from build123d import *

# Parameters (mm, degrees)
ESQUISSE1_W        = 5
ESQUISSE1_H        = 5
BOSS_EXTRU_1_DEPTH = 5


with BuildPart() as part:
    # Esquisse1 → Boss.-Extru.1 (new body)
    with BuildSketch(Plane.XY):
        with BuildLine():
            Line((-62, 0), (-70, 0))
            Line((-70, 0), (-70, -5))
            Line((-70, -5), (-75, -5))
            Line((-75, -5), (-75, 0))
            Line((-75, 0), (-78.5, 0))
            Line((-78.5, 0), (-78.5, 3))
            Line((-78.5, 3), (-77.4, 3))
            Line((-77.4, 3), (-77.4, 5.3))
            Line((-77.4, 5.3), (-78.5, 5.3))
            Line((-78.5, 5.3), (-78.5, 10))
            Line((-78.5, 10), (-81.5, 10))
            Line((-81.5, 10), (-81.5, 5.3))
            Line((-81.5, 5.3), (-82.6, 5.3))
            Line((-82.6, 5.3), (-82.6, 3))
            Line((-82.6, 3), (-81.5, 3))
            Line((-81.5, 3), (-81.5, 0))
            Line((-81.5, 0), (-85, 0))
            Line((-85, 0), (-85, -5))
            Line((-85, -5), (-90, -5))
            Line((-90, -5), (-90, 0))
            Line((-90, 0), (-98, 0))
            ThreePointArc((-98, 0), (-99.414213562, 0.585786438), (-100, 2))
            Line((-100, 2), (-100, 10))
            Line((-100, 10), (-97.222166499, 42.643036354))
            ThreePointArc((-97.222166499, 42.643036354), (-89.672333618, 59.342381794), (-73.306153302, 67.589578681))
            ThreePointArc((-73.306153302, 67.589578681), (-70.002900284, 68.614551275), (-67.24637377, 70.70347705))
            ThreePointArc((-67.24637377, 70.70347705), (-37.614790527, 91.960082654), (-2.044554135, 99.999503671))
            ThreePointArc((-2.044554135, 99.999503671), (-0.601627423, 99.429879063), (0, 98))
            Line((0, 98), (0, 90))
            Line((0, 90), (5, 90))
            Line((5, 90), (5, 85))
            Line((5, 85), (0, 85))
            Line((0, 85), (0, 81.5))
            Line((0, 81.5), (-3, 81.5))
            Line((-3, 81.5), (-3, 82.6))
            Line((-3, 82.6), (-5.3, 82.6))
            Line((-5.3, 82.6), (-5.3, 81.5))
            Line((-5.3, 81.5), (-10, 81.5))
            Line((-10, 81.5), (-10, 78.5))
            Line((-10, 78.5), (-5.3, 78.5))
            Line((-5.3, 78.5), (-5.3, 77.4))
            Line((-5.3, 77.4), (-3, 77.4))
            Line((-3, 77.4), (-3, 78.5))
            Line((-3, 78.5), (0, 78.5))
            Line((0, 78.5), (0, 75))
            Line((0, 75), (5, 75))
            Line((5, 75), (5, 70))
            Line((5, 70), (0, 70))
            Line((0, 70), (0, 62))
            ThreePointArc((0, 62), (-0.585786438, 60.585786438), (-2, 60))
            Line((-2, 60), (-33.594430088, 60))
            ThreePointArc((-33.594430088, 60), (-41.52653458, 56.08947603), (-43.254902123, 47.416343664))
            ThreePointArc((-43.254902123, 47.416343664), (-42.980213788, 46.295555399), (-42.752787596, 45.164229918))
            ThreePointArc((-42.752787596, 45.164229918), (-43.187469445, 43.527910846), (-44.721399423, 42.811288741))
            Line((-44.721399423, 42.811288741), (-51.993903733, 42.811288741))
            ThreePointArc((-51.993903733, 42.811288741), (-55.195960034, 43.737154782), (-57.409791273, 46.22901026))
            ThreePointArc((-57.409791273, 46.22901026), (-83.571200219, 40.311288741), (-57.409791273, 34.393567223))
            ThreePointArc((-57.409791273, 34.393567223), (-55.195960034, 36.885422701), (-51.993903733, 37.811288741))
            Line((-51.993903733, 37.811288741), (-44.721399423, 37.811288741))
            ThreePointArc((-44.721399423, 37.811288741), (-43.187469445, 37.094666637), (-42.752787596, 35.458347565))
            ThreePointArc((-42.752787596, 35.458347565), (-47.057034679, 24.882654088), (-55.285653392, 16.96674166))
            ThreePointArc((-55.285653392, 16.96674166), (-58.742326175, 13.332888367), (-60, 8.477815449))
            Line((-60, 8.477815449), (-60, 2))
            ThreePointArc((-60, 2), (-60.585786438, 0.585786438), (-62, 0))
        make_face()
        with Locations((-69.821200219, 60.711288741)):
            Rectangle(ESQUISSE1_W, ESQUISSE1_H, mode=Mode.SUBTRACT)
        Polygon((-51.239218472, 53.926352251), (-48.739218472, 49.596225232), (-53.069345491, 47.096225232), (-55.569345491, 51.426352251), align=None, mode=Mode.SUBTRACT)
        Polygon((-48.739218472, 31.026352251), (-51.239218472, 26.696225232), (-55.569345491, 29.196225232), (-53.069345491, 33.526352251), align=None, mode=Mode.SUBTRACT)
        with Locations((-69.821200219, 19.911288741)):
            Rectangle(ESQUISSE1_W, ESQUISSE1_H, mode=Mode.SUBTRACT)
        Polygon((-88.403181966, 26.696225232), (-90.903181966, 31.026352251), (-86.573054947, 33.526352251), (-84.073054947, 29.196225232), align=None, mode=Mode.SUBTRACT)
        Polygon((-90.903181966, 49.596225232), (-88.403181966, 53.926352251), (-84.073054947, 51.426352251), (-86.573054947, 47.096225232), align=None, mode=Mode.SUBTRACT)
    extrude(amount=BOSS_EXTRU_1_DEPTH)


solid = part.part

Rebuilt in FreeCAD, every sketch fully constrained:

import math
import FreeCAD as App
import Part
import Sketcher

V = App.Vector
Q = App.Units.Quantity


def add_polygon(sketch, points):
    """Adds a closed chain of lines whose ends are joined by coincident constraints."""
    first, n = sketch.GeometryCount, len(points)
    for a, b in zip(points, points[1:] + points[:1]):
        sketch.addGeometry(Part.LineSegment(App.Vector(*a, 0), App.Vector(*b, 0)), False)
    for i in range(n):
        sketch.addConstraint(Sketcher.Constraint("Coincident", first + i, 2, first + (i + 1) % n, 1))

doc = App.newDocument("Part")
body = doc.addObject("PartDesign::Body", "Body")

# Sketch on XY plane
sketch1 = body.newObject("Sketcher::SketchObject", "Sketch")
sketch1.AttachmentSupport = (doc.getObject("XY_Plane"), [""])
sketch1.MapMode = "FlatFace"
sketch1.addGeometry(Part.LineSegment(V(-70, 0, 0), V(-62, 0, 0)), False)  # 0
sketch1.addGeometry(Part.ArcOfCircle(Part.Circle(V(-62, 2, 0), V(0, 0, 1), 2), math.radians(-90), math.radians(0)), False)  # 1
sketch1.addGeometry(Part.LineSegment(V(-60, 2, 0), V(-60, 8.5, 0)), False)  # 2
sketch1.addGeometry(Part.ArcOfCircle(Part.Circle(V(-50, 8.5, 0), V(0, 0, 1), 10), math.radians(122), math.radians(180)), False)  # 3
sketch1.addGeometry(Part.ArcOfCircle(Part.Circle(V(-69.8, 40.3, 0), V(0, 0, 1), 27.5), math.radians(-58), math.radians(-10)), False)  # 4
sketch1.addGeometry(Part.ArcOfCircle(Part.Circle(V(-44.7, 35.8, 0), V(0, 0, 1), 2), math.radians(-10), math.radians(90)), False)  # 5
sketch1.addGeometry(Part.LineSegment(V(-44.7, 37.8, 0), V(-52, 37.8, 0)), False)  # 6
sketch1.addGeometry(Part.ArcOfCircle(Part.Circle(V(-52, 31.8, 0), V(0, 0, 1), 6), math.radians(90), math.radians(155)), False)  # 7
sketch1.addGeometry(Part.ArcOfCircle(Part.Circle(V(-69.8, 40.3, 0), V(0, 0, 1), 13.8), math.radians(25), math.radians(335)), False)  # 8
sketch1.addGeometry(Part.ArcOfCircle(Part.Circle(V(-52, 48.8, 0), V(0, 0, 1), 6), math.radians(-155), math.radians(-90)), False)  # 9
sketch1.addGeometry(Part.LineSegment(V(-52, 42.8, 0), V(-44.7, 42.8, 0)), False)  # 10
sketch1.addGeometry(Part.ArcOfCircle(Part.Circle(V(-44.7, 44.8, 0), V(0, 0, 1), 2), math.radians(-90), math.radians(10)), False)  # 11
sketch1.addGeometry(Part.ArcOfCircle(Part.Circle(V(-69.8, 40.3, 0), V(0, 0, 1), 27.5), math.radians(10.16), math.radians(14.97)), False)  # 12
sketch1.addGeometry(Part.ArcOfCircle(Part.Circle(V(-33.6, 50, 0), V(0, 0, 1), 10), math.radians(90), math.radians(195)), False)  # 13
sketch1.addGeometry(Part.LineSegment(V(-33.6, 60, 0), V(-2, 60, 0)), False)  # 14
sketch1.addGeometry(Part.ArcOfCircle(Part.Circle(V(-2, 62, 0), V(0, 0, 1), 2), math.radians(-90), math.radians(0)), False)  # 15
sketch1.addGeometry(Part.LineSegment(V(0, 62, 0), V(0, 70, 0)), False)  # 16
sketch1.addGeometry(Part.LineSegment(V(0, 70, 0), V(5, 70, 0)), False)  # 17
sketch1.addGeometry(Part.LineSegment(V(5, 70, 0), V(5, 75, 0)), False)  # 18
sketch1.addGeometry(Part.LineSegment(V(5, 75, 0), V(0, 75, 0)), False)  # 19
sketch1.addGeometry(Part.LineSegment(V(0, 75, 0), V(0, 78.5, 0)), False)  # 20
sketch1.addGeometry(Part.LineSegment(V(0, 78.5, 0), V(-3, 78.5, 0)), False)  # 21
sketch1.addGeometry(Part.LineSegment(V(-3, 78.5, 0), V(-3, 77.4, 0)), False)  # 22
sketch1.addGeometry(Part.LineSegment(V(-3, 77.4, 0), V(-5.3, 77.4, 0)), False)  # 23
sketch1.addGeometry(Part.LineSegment(V(-5.3, 77.4, 0), V(-5.3, 78.5, 0)), False)  # 24
sketch1.addGeometry(Part.LineSegment(V(-5.3, 78.5, 0), V(-10, 78.5, 0)), False)  # 25
sketch1.addGeometry(Part.LineSegment(V(-10, 78.5, 0), V(-10, 81.5, 0)), False)  # 26
sketch1.addGeometry(Part.LineSegment(V(-10, 81.5, 0), V(-5.3, 81.5, 0)), False)  # 27
sketch1.addGeometry(Part.LineSegment(V(-5.3, 81.5, 0), V(-5.3, 82.6, 0)), False)  # 28
sketch1.addGeometry(Part.LineSegment(V(-5.3, 82.6, 0), V(-3, 82.6, 0)), False)  # 29
sketch1.addGeometry(Part.LineSegment(V(-3, 82.6, 0), V(-3, 81.5, 0)), False)  # 30
sketch1.addGeometry(Part.LineSegment(V(-3, 81.5, 0), V(0, 81.5, 0)), False)  # 31
sketch1.addGeometry(Part.LineSegment(V(0, 81.5, 0), V(0, 85, 0)), False)  # 32
sketch1.addGeometry(Part.LineSegment(V(0, 85, 0), V(5, 85, 0)), False)  # 33
sketch1.addGeometry(Part.LineSegment(V(5, 85, 0), V(5, 90, 0)), False)  # 34
sketch1.addGeometry(Part.LineSegment(V(5, 90, 0), V(0, 90, 0)), False)  # 35
sketch1.addGeometry(Part.LineSegment(V(0, 90, 0), V(0, 98, 0)), False)  # 36
sketch1.addGeometry(Part.ArcOfCircle(Part.Circle(V(-2, 98, 0), V(0, 0, 1), 2), math.radians(0), math.radians(91)), False)  # 37
sketch1.addGeometry(Part.ArcOfCircle(Part.Circle(V(0, 8.2, 0), V(0, 0, 1), 91.8), math.radians(91), math.radians(137)), False)  # 38
sketch1.addGeometry(Part.ArcOfCircle(Part.Circle(V(-74.6, 77.5, 0), V(0, 0, 1), 10), math.radians(-83), math.radians(-43)), False)  # 39
sketch1.addGeometry(Part.ArcOfCircle(Part.Circle(V(-69.8, 40.3, 0), V(0, 0, 1), 27.5), math.radians(97), math.radians(175)), False)  # 40
sketch1.addGeometry(Part.LineSegment(V(-97.2, 42.6, 0), V(-100, 10, 0)), False)  # 41
sketch1.addGeometry(Part.LineSegment(V(-100, 10, 0), V(-100, 2, 0)), False)  # 42
sketch1.addGeometry(Part.ArcOfCircle(Part.Circle(V(-98, 2, 0), V(0, 0, 1), 2), math.radians(-180), math.radians(-90)), False)  # 43
sketch1.addGeometry(Part.LineSegment(V(-98, 0, 0), V(-90, 0, 0)), False)  # 44
sketch1.addGeometry(Part.LineSegment(V(-90, 0, 0), V(-90, -5, 0)), False)  # 45
sketch1.addGeometry(Part.LineSegment(V(-90, -5, 0), V(-85, -5, 0)), False)  # 46
sketch1.addGeometry(Part.LineSegment(V(-85, -5, 0), V(-85, 0, 0)), False)  # 47
sketch1.addGeometry(Part.LineSegment(V(-85, 0, 0), V(-81.5, 0, 0)), False)  # 48
sketch1.addGeometry(Part.LineSegment(V(-81.5, 0, 0), V(-81.5, 3, 0)), False)  # 49
sketch1.addGeometry(Part.LineSegment(V(-81.5, 3, 0), V(-82.6, 3, 0)), False)  # 50
sketch1.addGeometry(Part.LineSegment(V(-82.6, 3, 0), V(-82.6, 5.3, 0)), False)  # 51
sketch1.addGeometry(Part.LineSegment(V(-82.6, 5.3, 0), V(-81.5, 5.3, 0)), False)  # 52
sketch1.addGeometry(Part.LineSegment(V(-81.5, 5.3, 0), V(-81.5, 10, 0)), False)  # 53
sketch1.addGeometry(Part.LineSegment(V(-81.5, 10, 0), V(-78.5, 10, 0)), False)  # 54
sketch1.addGeometry(Part.LineSegment(V(-78.5, 10, 0), V(-78.5, 5.3, 0)), False)  # 55
sketch1.addGeometry(Part.LineSegment(V(-78.5, 5.3, 0), V(-77.4, 5.3, 0)), False)  # 56
sketch1.addGeometry(Part.LineSegment(V(-77.4, 5.3, 0), V(-77.4, 3, 0)), False)  # 57
sketch1.addGeometry(Part.LineSegment(V(-77.4, 3, 0), V(-78.5, 3, 0)), False)  # 58
sketch1.addGeometry(Part.LineSegment(V(-78.5, 3, 0), V(-78.5, 0, 0)), False)  # 59
sketch1.addGeometry(Part.LineSegment(V(-78.5, 0, 0), V(-75, 0, 0)), False)  # 60
sketch1.addGeometry(Part.LineSegment(V(-75, 0, 0), V(-75, -5, 0)), False)  # 61
sketch1.addGeometry(Part.LineSegment(V(-75, -5, 0), V(-70, -5, 0)), False)  # 62
sketch1.addGeometry(Part.LineSegment(V(-70, -5, 0), V(-70, 0, 0)), False)  # 63
add_polygon(sketch1, [(-48.7, 31), (-51.2, 26.7), (-55.6, 29.2), (-53.1, 33.5)])  # lines 64-67
add_polygon(sketch1, [(-72.3, 17.4), (-72.3, 22.4), (-67.3, 22.4), (-67.3, 17.4)])  # lines 68-71
add_polygon(sketch1, [(-88.4, 26.7), (-90.9, 31), (-86.6, 33.5), (-84.1, 29.2)])  # lines 72-75
add_polygon(sketch1, [(-51.2, 53.9), (-48.7, 49.6), (-53.1, 47.1), (-55.6, 51.4)])  # lines 76-79
add_polygon(sketch1, [(-90.9, 49.6), (-88.4, 53.9), (-84.1, 51.4), (-86.6, 47.1)])  # lines 80-83
add_polygon(sketch1, [(-72.3, 58.2), (-72.3, 63.2), (-67.3, 63.2), (-67.3, 58.2)])  # lines 84-87
sketch1.addConstraint([
    Sketcher.Constraint("Tangent", 0, 2, 1, 1),
    Sketcher.Constraint("Tangent", 1, 2, 2, 1),
    Sketcher.Constraint("Tangent", 2, 2, 3, 2),
    Sketcher.Constraint("Tangent", 3, 1, 4, 1),
    Sketcher.Constraint("Tangent", 4, 2, 5, 1),
    Sketcher.Constraint("Tangent", 5, 2, 6, 1),
    Sketcher.Constraint("Tangent", 6, 2, 7, 1),
    Sketcher.Constraint("Tangent", 7, 2, 8, 2),
    Sketcher.Constraint("Tangent", 8, 1, 9, 1),
    Sketcher.Constraint("Tangent", 9, 2, 10, 1),
    Sketcher.Constraint("Tangent", 10, 2, 11, 1),
    Sketcher.Constraint("Tangent", 11, 2, 12, 1),
    Sketcher.Constraint("Tangent", 12, 2, 13, 2),
    Sketcher.Constraint("Tangent", 13, 1, 14, 1),
    Sketcher.Constraint("Tangent", 14, 2, 15, 1),
    Sketcher.Constraint("Tangent", 15, 2, 16, 1),
    Sketcher.Constraint("Coincident", 16, 2, 17, 1),
    Sketcher.Constraint("Coincident", 17, 2, 18, 1),
    Sketcher.Constraint("Coincident", 18, 2, 19, 1),
    Sketcher.Constraint("Coincident", 19, 2, 20, 1),
    Sketcher.Constraint("Coincident", 20, 2, 21, 1),
    Sketcher.Constraint("Coincident", 21, 2, 22, 1),
    Sketcher.Constraint("Coincident", 22, 2, 23, 1),
    Sketcher.Constraint("Coincident", 23, 2, 24, 1),
    Sketcher.Constraint("Coincident", 24, 2, 25, 1),
    Sketcher.Constraint("Coincident", 25, 2, 26, 1),
    Sketcher.Constraint("Coincident", 26, 2, 27, 1),
    Sketcher.Constraint("Coincident", 27, 2, 28, 1),
    Sketcher.Constraint("Coincident", 28, 2, 29, 1),
    Sketcher.Constraint("Coincident", 29, 2, 30, 1),
    Sketcher.Constraint("Coincident", 30, 2, 31, 1),
    Sketcher.Constraint("Coincident", 31, 2, 32, 1),
    Sketcher.Constraint("Coincident", 32, 2, 33, 1),
    Sketcher.Constraint("Coincident", 33, 2, 34, 1),
    Sketcher.Constraint("Coincident", 34, 2, 35, 1),
    Sketcher.Constraint("Coincident", 35, 2, 36, 1),
    Sketcher.Constraint("Tangent", 36, 2, 37, 1),
    Sketcher.Constraint("Tangent", 37, 2, 38, 1),
    Sketcher.Constraint("Tangent", 38, 2, 39, 2),
    Sketcher.Constraint("Tangent", 39, 1, 40, 1),
    Sketcher.Constraint("Tangent", 40, 2, 41, 1),
    Sketcher.Constraint("Coincident", 41, 2, 42, 1),
    Sketcher.Constraint("Tangent", 42, 2, 43, 1),
    Sketcher.Constraint("Tangent", 43, 2, 44, 1),
    Sketcher.Constraint("Coincident", 44, 2, 45, 1),
    Sketcher.Constraint("Coincident", 45, 2, 46, 1),
    Sketcher.Constraint("Coincident", 46, 2, 47, 1),
    Sketcher.Constraint("Coincident", 47, 2, 48, 1),
    Sketcher.Constraint("Coincident", 48, 2, 49, 1),
    Sketcher.Constraint("Coincident", 49, 2, 50, 1),
    Sketcher.Constraint("Coincident", 50, 2, 51, 1),
    Sketcher.Constraint("Coincident", 51, 2, 52, 1),
    Sketcher.Constraint("Coincident", 52, 2, 53, 1),
    Sketcher.Constraint("Coincident", 53, 2, 54, 1),
    Sketcher.Constraint("Coincident", 54, 2, 55, 1),
    Sketcher.Constraint("Coincident", 55, 2, 56, 1),
    Sketcher.Constraint("Coincident", 56, 2, 57, 1),
    Sketcher.Constraint("Coincident", 57, 2, 58, 1),
    Sketcher.Constraint("Coincident", 58, 2, 59, 1),
    Sketcher.Constraint("Coincident", 59, 2, 60, 1),
    Sketcher.Constraint("Coincident", 60, 2, 61, 1),
    Sketcher.Constraint("Coincident", 61, 2, 62, 1),
    Sketcher.Constraint("Coincident", 62, 2, 63, 1),
    Sketcher.Constraint("Coincident", 63, 2, 0, 1),
    Sketcher.Constraint("Horizontal", 0),
    Sketcher.Constraint("Vertical", 2),
    Sketcher.Constraint("Horizontal", 6),
    Sketcher.Constraint("Horizontal", 10),
    Sketcher.Constraint("Horizontal", 14),
    Sketcher.Constraint("Vertical", 16),
    Sketcher.Constraint("Horizontal", 17),
    Sketcher.Constraint("Vertical", 18),
    Sketcher.Constraint("Horizontal", 19),
    Sketcher.Constraint("Vertical", 20),
    Sketcher.Constraint("Horizontal", 21),
    Sketcher.Constraint("Vertical", 22),
    Sketcher.Constraint("Horizontal", 23),
    Sketcher.Constraint("Vertical", 24),
    Sketcher.Constraint("Horizontal", 25),
    Sketcher.Constraint("Vertical", 26),
    Sketcher.Constraint("Horizontal", 27),
    Sketcher.Constraint("Vertical", 28),
    Sketcher.Constraint("Horizontal", 29),
    Sketcher.Constraint("Vertical", 30),
    Sketcher.Constraint("Horizontal", 31),
    Sketcher.Constraint("Vertical", 32),
    Sketcher.Constraint("Horizontal", 33),
    Sketcher.Constraint("Vertical", 34),
    Sketcher.Constraint("Horizontal", 35),
    Sketcher.Constraint("Vertical", 36),
    Sketcher.Constraint("Vertical", 42),
    Sketcher.Constraint("Horizontal", 44),
    Sketcher.Constraint("Vertical", 45),
    Sketcher.Constraint("Horizontal", 46),
    Sketcher.Constraint("Vertical", 47),
    Sketcher.Constraint("Horizontal", 48),
    Sketcher.Constraint("Vertical", 49),
    Sketcher.Constraint("Horizontal", 50),
    Sketcher.Constraint("Vertical", 51),
    Sketcher.Constraint("Horizontal", 52),
    Sketcher.Constraint("Vertical", 53),
    Sketcher.Constraint("Horizontal", 54),
    Sketcher.Constraint("Vertical", 55),
    Sketcher.Constraint("Horizontal", 56),
    Sketcher.Constraint("Vertical", 57),
    Sketcher.Constraint("Horizontal", 58),
    Sketcher.Constraint("Vertical", 59),
    Sketcher.Constraint("Horizontal", 60),
    Sketcher.Constraint("Vertical", 61),
    Sketcher.Constraint("Horizontal", 62),
    Sketcher.Constraint("Vertical", 63),
    Sketcher.Constraint("Vertical", 68),
    Sketcher.Constraint("Horizontal", 69),
    Sketcher.Constraint("Vertical", 70),
    Sketcher.Constraint("Horizontal", 71),
    Sketcher.Constraint("Vertical", 84),
    Sketcher.Constraint("Horizontal", 85),
    Sketcher.Constraint("Vertical", 86),
    Sketcher.Constraint("Horizontal", 87),
    Sketcher.Constraint("Coincident", 8, 3, 4, 3),
    Sketcher.Constraint("Coincident", 12, 3, 4, 3),
    Sketcher.Constraint("Coincident", 40, 3, 4, 3),
    Sketcher.Constraint("Equal", 1, 5),
    Sketcher.Constraint("Equal", 7, 9),
    Sketcher.Constraint("Equal", 5, 11),
    Sketcher.Constraint("Equal", 4, 12),
    Sketcher.Constraint("Equal", 3, 13),
    Sketcher.Constraint("Equal", 11, 15),
    Sketcher.Constraint("Equal", 15, 37),
    Sketcher.Constraint("Equal", 13, 39),
    Sketcher.Constraint("Equal", 12, 40),
    Sketcher.Constraint("Equal", 37, 43),
    Sketcher.Constraint("PointOnObject", 38, 3, -2),
    Sketcher.Constraint("PointOnObject", 0, 2, -1),
    Sketcher.Constraint("PointOnObject", 15, 2, -2),
    Sketcher.Constraint("PointOnObject", 19, 2, -2),
    Sketcher.Constraint("PointOnObject", 31, 2, -2),
    Sketcher.Constraint("PointOnObject", 35, 2, -2),
    Sketcher.Constraint("PointOnObject", 43, 2, -1),
    Sketcher.Constraint("PointOnObject", 47, 2, -1),
    Sketcher.Constraint("PointOnObject", 59, 2, -1),
    Sketcher.Constraint("Perpendicular", 64, 65),
    Sketcher.Constraint("Perpendicular", 65, 66),
    Sketcher.Constraint("Perpendicular", 66, 67),
    Sketcher.Constraint("Perpendicular", 72, 73),
    Sketcher.Constraint("Perpendicular", 73, 74),
    Sketcher.Constraint("Perpendicular", 74, 75),
    Sketcher.Constraint("Perpendicular", 75, 76),
    Sketcher.Constraint("Perpendicular", 76, 77),
    Sketcher.Constraint("Perpendicular", 77, 78),
    Sketcher.Constraint("Perpendicular", 78, 79),
    Sketcher.Constraint("Perpendicular", 67, 80),
    Sketcher.Constraint("Perpendicular", 80, 81),
    Sketcher.Constraint("Perpendicular", 81, 82),
    Sketcher.Constraint("Perpendicular", 82, 83),
    Sketcher.Constraint("Horizontal", 21, 2, 24, 2),
    Sketcher.Constraint("Horizontal", 27, 2, 30, 2),
    Sketcher.Constraint("Horizontal", 41, 2, 53, 2),
    Sketcher.Constraint("Horizontal", 52, 2, 55, 2),
    Sketcher.Constraint("Horizontal", 50, 2, 57, 2),
    Sketcher.Constraint("Horizontal", 46, 2, 61, 2),
    Sketcher.Constraint("Horizontal", 67, 2, 72, 2),
    Sketcher.Constraint("Horizontal", 66, 2, 73, 2),
    Sketcher.Constraint("Horizontal", 65, 2, 74, 2),
    Sketcher.Constraint("Horizontal", 79, 2, 80, 2),
    Sketcher.Constraint("Horizontal", 78, 2, 81, 2),
    Sketcher.Constraint("Horizontal", 77, 2, 82, 2),
    Sketcher.Constraint("Vertical", 7, 3, 9, 3),
    Sketcher.Constraint("Vertical", 24, 2, 27, 2),
    Sketcher.Constraint("Vertical", 22, 2, 29, 2),
    Sketcher.Constraint("Vertical", 18, 2, 33, 2),
    Sketcher.Constraint("Vertical", 49, 2, 52, 2),
    Sketcher.Constraint("Vertical", 55, 2, 58, 2),
    Sketcher.Constraint("Vertical", 67, 2, 76, 2),
    Sketcher.Constraint("Vertical", 66, 2, 77, 2),
    Sketcher.Constraint("Vertical", 65, 2, 78, 2),
    Sketcher.Constraint("Vertical", 75, 2, 80, 2),
    Sketcher.Constraint("Vertical", 74, 2, 81, 2),
    Sketcher.Constraint("Vertical", 71, 2, 84, 2),
    Sketcher.Constraint("Vertical", 70, 2, 85, 2),
    Sketcher.Constraint("Equal", 0, 44),
    Sketcher.Constraint("Equal", 35, 46),
    Sketcher.Constraint("Equal", 31, 54),
    Sketcher.Constraint("Equal", 52, 56),
    Sketcher.Constraint("Equal", 48, 60),
    Sketcher.Constraint("Equal", 46, 62),
    Sketcher.Constraint("Equal", 62, 69),
    Sketcher.Constraint("Equal", 44, 16),
    Sketcher.Constraint("Equal", 87, 18),
    Sketcher.Constraint("Equal", 60, 20),
    Sketcher.Constraint("Equal", 58, 22),
    Sketcher.Constraint("Equal", 54, 26),
    Sketcher.Constraint("Equal", 24, 28),
    Sketcher.Constraint("Equal", 20, 32),
    Sketcher.Constraint("Equal", 18, 34),
    Sketcher.Constraint("Equal", 16, 36),
    Sketcher.Constraint("Equal", 36, 42),
    Sketcher.Constraint("Equal", 34, 45),
    Sketcher.Constraint("Equal", 26, 49),
    Sketcher.Constraint("Equal", 29, 51),
    Sketcher.Constraint("Equal", 27, 53),
    Sketcher.Constraint("Equal", 63, 68),
    Sketcher.Constraint("Equal", 70, 84),
    Sketcher.Constraint("Equal", 64, 65),
    Sketcher.Constraint("Radius", 1, Q("2 mm")),
    Sketcher.Constraint("Radius", 3, Q("10 mm")),
    Sketcher.Constraint("Radius", 7, Q("6 mm")),
    Sketcher.Constraint("Radius", 4, Q("27.5 mm")),
    Sketcher.Constraint("DistanceX", 0, 1, 0, 2, Q("8 mm")),
    Sketcher.Constraint("DistanceX", 17, 1, 17, 2, Q("5 mm")),
    Sketcher.Constraint("DistanceX", 21, 2, 21, 1, Q("3 mm")),
    Sketcher.Constraint("Angle", 64, Q("-120 deg")),
    Sketcher.Constraint("Radius", 8, Q("13.75 mm")),
    Sketcher.Constraint("Distance", 64, Q("5 mm")),
    Sketcher.Constraint("DistanceX", 23, 2, 23, 1, Q("2.3 mm")),
    Sketcher.Constraint("DistanceX", 48, 1, 48, 2, Q("3.5 mm")),
    Sketcher.Constraint("DistanceX", 50, 2, 50, 1, Q("1.1 mm")),
    Sketcher.Constraint("DistanceX", 1, 3, -1, 1, Q("62 mm")),
    Sketcher.Constraint("DistanceY", -1, 1, 13, 3, Q("50 mm")),
    Sketcher.Constraint("Radius", 38, Q("91.778423 mm")),
    Sketcher.Constraint("DistanceX", 14, 1, 14, 2, Q("31.59443 mm")),
    Sketcher.Constraint("DistanceX", 4, 3, -1, 1, Q("69.8212 mm")),
    Sketcher.Constraint("DistanceX", 5, 3, -1, 1, Q("44.721399 mm")),
    Sketcher.Constraint("DistanceX", 68, 2, -1, 1, Q("72.3212 mm")),
    Sketcher.Constraint("DistanceX", 64, 2, -1, 1, Q("51.239218 mm")),
    Sketcher.Constraint("DistanceY", -1, 1, 68, 2, Q("22.411289 mm")),
    Sketcher.Constraint("DistanceX", 72, 2, -1, 1, Q("90.903182 mm")),
    Sketcher.Constraint("DistanceY", -1, 1, 84, 2, Q("63.211289 mm")),
    Sketcher.Constraint("DistanceY", -1, 1, 64, 2, Q("26.696225 mm")),
    Sketcher.Constraint("DistanceY", -1, 1, 76, 2, Q("49.596225 mm")),
])
pad1 = body.newObject("PartDesign::Pad", "Pad")
pad1.Profile = sketch1
pad1.Length = 5

doc.recompute()
